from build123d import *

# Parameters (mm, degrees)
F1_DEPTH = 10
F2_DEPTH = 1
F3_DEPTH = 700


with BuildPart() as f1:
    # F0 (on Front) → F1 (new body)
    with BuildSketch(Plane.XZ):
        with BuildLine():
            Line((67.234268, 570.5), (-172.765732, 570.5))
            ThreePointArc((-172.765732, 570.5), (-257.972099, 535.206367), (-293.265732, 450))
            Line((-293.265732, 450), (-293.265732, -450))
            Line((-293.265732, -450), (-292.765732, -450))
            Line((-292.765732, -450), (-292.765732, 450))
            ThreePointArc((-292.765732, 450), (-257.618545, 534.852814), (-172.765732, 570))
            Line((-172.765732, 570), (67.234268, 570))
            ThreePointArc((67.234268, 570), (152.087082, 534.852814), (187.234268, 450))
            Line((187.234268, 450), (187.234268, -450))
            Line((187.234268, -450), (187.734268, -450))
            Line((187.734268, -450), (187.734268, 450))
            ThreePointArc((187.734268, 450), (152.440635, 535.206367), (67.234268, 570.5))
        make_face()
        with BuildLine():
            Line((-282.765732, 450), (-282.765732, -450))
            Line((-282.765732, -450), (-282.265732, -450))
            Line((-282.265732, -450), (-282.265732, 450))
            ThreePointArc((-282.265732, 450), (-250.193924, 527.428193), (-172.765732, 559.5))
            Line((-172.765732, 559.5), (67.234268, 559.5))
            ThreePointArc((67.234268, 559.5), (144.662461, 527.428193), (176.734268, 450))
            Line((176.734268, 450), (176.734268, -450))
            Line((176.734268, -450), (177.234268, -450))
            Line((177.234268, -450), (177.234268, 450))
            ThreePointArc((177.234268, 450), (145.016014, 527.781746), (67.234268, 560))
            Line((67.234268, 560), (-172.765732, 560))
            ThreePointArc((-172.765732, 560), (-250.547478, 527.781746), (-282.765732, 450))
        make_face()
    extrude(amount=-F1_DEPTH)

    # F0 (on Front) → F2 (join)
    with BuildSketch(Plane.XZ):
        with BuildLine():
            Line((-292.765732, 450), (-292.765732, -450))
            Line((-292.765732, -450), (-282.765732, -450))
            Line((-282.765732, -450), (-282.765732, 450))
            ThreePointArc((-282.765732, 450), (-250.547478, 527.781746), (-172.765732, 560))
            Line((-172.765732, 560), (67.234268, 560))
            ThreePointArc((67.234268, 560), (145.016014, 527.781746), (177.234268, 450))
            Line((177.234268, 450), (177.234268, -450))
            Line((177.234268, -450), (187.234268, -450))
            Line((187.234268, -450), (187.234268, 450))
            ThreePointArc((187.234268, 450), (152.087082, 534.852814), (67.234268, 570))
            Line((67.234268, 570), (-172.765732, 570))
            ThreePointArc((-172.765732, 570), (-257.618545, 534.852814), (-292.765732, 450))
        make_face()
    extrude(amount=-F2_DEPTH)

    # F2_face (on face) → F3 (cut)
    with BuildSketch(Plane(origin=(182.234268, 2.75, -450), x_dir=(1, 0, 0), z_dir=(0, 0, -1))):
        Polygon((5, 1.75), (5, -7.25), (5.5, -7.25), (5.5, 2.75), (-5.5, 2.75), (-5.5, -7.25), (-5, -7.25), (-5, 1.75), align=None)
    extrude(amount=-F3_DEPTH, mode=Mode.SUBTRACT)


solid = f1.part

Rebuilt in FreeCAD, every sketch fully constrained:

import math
import FreeCAD as App
import Part
import Sketcher

V = App.Vector


def add_polygon(sketch, points):
    """Adds a closed chain of lines whose ends are joined by coincident constraints."""
    first, n = sketch.GeometryCount, len(points)
    for a, b in zip(points, points[1:] + points[:1]):
        sketch.addGeometry(Part.LineSegment(App.Vector(*a, 0), App.Vector(*b, 0)), False)
    for i in range(n):
        sketch.addConstraint(Sketcher.Constraint("Coincident", first + i, 2, first + (i + 1) % n, 1))

doc = App.newDocument("Part")
body = doc.addObject("PartDesign::Body", "Body")
body.AllowCompound = True

# Sketch on XZ plane
sketch1 = doc.addObject("Sketcher::SketchObject", "Sketch")
body.addObject(sketch1)
sketch1.AttachmentSupport = (doc.XZ_Plane, [""])
sketch1.MapMode = "FlatFace"
sketch1.addGeometry(Part.LineSegment(V(67.234268, 570.5, 0), V(-172.765732, 570.5, 0)), False)
sketch1.addGeometry(Part.ArcOfCircle(Part.Circle(V(-172.765732, 450, 0), V(0, 0, 1), 120.5), math.radians(90), math.radians(180)), False)
sketch1.addGeometry(Part.LineSegment(V(-293.265732, 450, 0), V(-293.265732, -450, 0)), False)
sketch1.addGeometry(Part.LineSegment(V(-293.265732, -450, 0), V(-292.765732, -450, 0)), False)
sketch1.addGeometry(Part.LineSegment(V(-292.765732, -450, 0), V(-292.765732, 450, 0)), False)
sketch1.addGeometry(Part.ArcOfCircle(Part.Circle(V(-172.765731, 449.999999, 0), V(0, 0, 1), 120.000001), math.radians(90), math.radians(180)), False)
sketch1.addGeometry(Part.LineSegment(V(-172.765732, 570, 0), V(67.234268, 570, 0)), False)
sketch1.addGeometry(Part.ArcOfCircle(Part.Circle(V(67.234269, 450.000001, 0), V(0, 0, 1), 119.999999), math.radians(0), math.radians(90)), False)
sketch1.addGeometry(Part.LineSegment(V(187.234268, 450, 0), V(187.234268, -450, 0)), False)
sketch1.addGeometry(Part.LineSegment(V(187.234268, -450, 0), V(187.734268, -450, 0)), False)
sketch1.addGeometry(Part.LineSegment(V(187.734268, -450, 0), V(187.734268, 450, 0)), False)
sketch1.addGeometry(Part.ArcOfCircle(Part.Circle(V(67.234268, 450, 0), V(0, 0, 1), 120.5), math.radians(0), math.radians(90)), False)
sketch1.addGeometry(Part.LineSegment(V(-282.765732, 450, 0), V(-282.765732, -450, 0)), False)
sketch1.addGeometry(Part.LineSegment(V(-282.765732, -450, 0), V(-282.265732, -450, 0)), False)
sketch1.addGeometry(Part.LineSegment(V(-282.265732, -450, 0), V(-282.265732, 450, 0)), False)
sketch1.addGeometry(Part.ArcOfCircle(Part.Circle(V(-172.765732, 450, 0), V(0, 0, 1), 109.5), math.radians(90), math.radians(180)), False)
sketch1.addGeometry(Part.LineSegment(V(-172.765732, 559.5, 0), V(67.234268, 559.5, 0)), False)
sketch1.addGeometry(Part.ArcOfCircle(Part.Circle(V(67.23427, 450.000002, 0), V(0, 0, 1), 109.499998), math.radians(-0.000001), math.radians(90.000001)), False)
sketch1.addGeometry(Part.LineSegment(V(176.734268, 450, 0), V(176.734268, -450, 0)), False)
sketch1.addGeometry(Part.LineSegment(V(176.734268, -450, 0), V(177.234268, -450, 0)), False)
sketch1.addGeometry(Part.LineSegment(V(177.234268, -450, 0), V(177.234268, 450, 0)), False)
sketch1.addGeometry(Part.ArcOfCircle(Part.Circle(V(67.234268, 450, 0), V(0, 0, 1), 110), math.radians(0), math.radians(90)), False)
sketch1.addGeometry(Part.LineSegment(V(67.234268, 560, 0), V(-172.765732, 560, 0)), False)
sketch1.addGeometry(Part.ArcOfCircle(Part.Circle(V(-172.765732, 450, 0), V(0, 0, 1), 110), math.radians(90), math.radians(180)), False)
sketch1.addConstraint(Sketcher.Constraint("Tangent", 0, 2, 1, 1))
sketch1.addConstraint(Sketcher.Constraint("Tangent", 1, 2, 2, 1))
sketch1.addConstraint(Sketcher.Constraint("Coincident", 2, 2, 3, 1))
sketch1.addConstraint(Sketcher.Constraint("Coincident", 3, 2, 4, 1))
sketch1.addConstraint(Sketcher.Constraint("Tangent", 4, 2, 5, 2))
sketch1.addConstraint(Sketcher.Constraint("Tangent", 5, 1, 6, 1))
sketch1.addConstraint(Sketcher.Constraint("Tangent", 6, 2, 7, 2))
sketch1.addConstraint(Sketcher.Constraint("Tangent", 7, 1, 8, 1))
sketch1.addConstraint(Sketcher.Constraint("Coincident", 8, 2, 9, 1))
sketch1.addConstraint(Sketcher.Constraint("Coincident", 9, 2, 10, 1))
sketch1.addConstraint(Sketcher.Constraint("Tangent", 10, 2, 11, 1))
sketch1.addConstraint(Sketcher.Constraint("Tangent", 11, 2, 0, 1))
sketch1.addConstraint(Sketcher.Constraint("Coincident", 12, 2, 13, 1))
sketch1.addConstraint(Sketcher.Constraint("Coincident", 13, 2, 14, 1))
sketch1.addConstraint(Sketcher.Constraint("Tangent", 14, 2, 15, 2))
sketch1.addConstraint(Sketcher.Constraint("Tangent", 15, 1, 16, 1))
sketch1.addConstraint(Sketcher.Constraint("Tangent", 16, 2, 17, 2))
sketch1.addConstraint(Sketcher.Constraint("Tangent", 17, 1, 18, 1))
sketch1.addConstraint(Sketcher.Constraint("Coincident", 18, 2, 19, 1))
sketch1.addConstraint(Sketcher.Constraint("Coincident", 19, 2, 20, 1))
sketch1.addConstraint(Sketcher.Constraint("Tangent", 20, 2, 21, 1))
sketch1.addConstraint(Sketcher.Constraint("Tangent", 21, 2, 22, 1))
sketch1.addConstraint(Sketcher.Constraint("Tangent", 22, 2, 23, 1))
sketch1.addConstraint(Sketcher.Constraint("Tangent", 23, 2, 12, 1))
sketch1.addConstraint(Sketcher.Constraint("Horizontal", 0))
sketch1.addConstraint(Sketcher.Constraint("Vertical", 2))
sketch1.addConstraint(Sketcher.Constraint("Horizontal", 3))
sketch1.addConstraint(Sketcher.Constraint("Vertical", 4))
sketch1.addConstraint(Sketcher.Constraint("Horizontal", 6))
sketch1.addConstraint(Sketcher.Constraint("Vertical", 8))
sketch1.addConstraint(Sketcher.Constraint("Horizontal", 9))
sketch1.addConstraint(Sketcher.Constraint("Vertical", 10))
sketch1.addConstraint(Sketcher.Constraint("Vertical", 12))
sketch1.addConstraint(Sketcher.Constraint("Horizontal", 13))
sketch1.addConstraint(Sketcher.Constraint("Vertical", 14))
sketch1.addConstraint(Sketcher.Constraint("Horizontal", 16))
sketch1.addConstraint(Sketcher.Constraint("Vertical", 18))
sketch1.addConstraint(Sketcher.Constraint("Horizontal", 19))
sketch1.addConstraint(Sketcher.Constraint("Vertical", 20))
sketch1.addConstraint(Sketcher.Constraint("Horizontal", 22))
sketch1.addConstraint(Sketcher.Constraint("Coincident", 5, 3, 1, 3))
sketch1.addConstraint(Sketcher.Constraint("Coincident", 11, 3, 7, 3))
sketch1.addConstraint(Sketcher.Constraint("Coincident", 15, 3, 1, 3))
sketch1.addConstraint(Sketcher.Constraint("Coincident", 17, 3, 7, 3))
sketch1.addConstraint(Sketcher.Constraint("Coincident", 21, 3, 7, 3))
sketch1.addConstraint(Sketcher.Constraint("Coincident", 23, 3, 1, 3))
sketch1.addConstraint(Sketcher.Constraint("Equal", 5, 7))
sketch1.addConstraint(Sketcher.Constraint("Horizontal", 3, 2, 8, 2))
sketch1.addConstraint(Sketcher.Constraint("Horizontal", 9, 2, 12, 2))
sketch1.addConstraint(Sketcher.Constraint("Horizontal", 13, 2, 18, 2))
sketch1.addConstraint(Sketcher.Constraint("Equal", 9, 13))
sketch1.addConstraint(Sketcher.Constraint("Radius", 5, 120.000001))
sketch1.addConstraint(Sketcher.Constraint("Radius", 21, 110.0))
sketch1.addConstraint(Sketcher.Constraint("Radius", 1, 120.5))
sketch1.addConstraint(Sketcher.Constraint("DistanceX", 0, 2, 0, 1, 240.0))
sketch1.addConstraint(Sketcher.Constraint("DistanceY", 2, 2, 2, 1, 900.0))
sketch1.addConstraint(Sketcher.Constraint("DistanceY", -1, 1, 1, 3, 450.0))
sketch1.addConstraint(Sketcher.Constraint("DistanceX", 1, 3, -1, 1, 172.765732))
pad1 = doc.addObject("PartDesign::Pad", "Pad")
body.addObject(pad1)
pad1.Profile = sketch1
pad1.Length = 10
pad1.Reversed = True

# Sketch on XZ plane
sketch2 = doc.addObject("Sketcher::SketchObject", "Sketch001")
body.addObject(sketch2)
sketch2.AttachmentSupport = (doc.XZ_Plane, [""])
sketch2.MapMode = "FlatFace"
sketch2.addGeometry(Part.LineSegment(V(-292.765732, 450, 0), V(-292.765732, -450, 0)), False)
sketch2.addGeometry(Part.LineSegment(V(-292.765732, -450, 0), V(-282.765732, -450, 0)), False)
sketch2.addGeometry(Part.LineSegment(V(-282.765732, -450, 0), V(-282.765732, 450, 0)), False)
sketch2.addGeometry(Part.ArcOfCircle(Part.Circle(V(-172.765732, 450, 0), V(0, 0, 1), 110), math.radians(90), math.radians(180)), False)
sketch2.addGeometry(Part.LineSegment(V(-172.765732, 560, 0), V(67.234268, 560, 0)), False)
sketch2.addGeometry(Part.ArcOfCircle(Part.Circle(V(67.234268, 450, 0), V(0, 0, 1), 110), math.radians(0), math.radians(90)), False)
sketch2.addGeometry(Part.LineSegment(V(177.234268, 450, 0), V(177.234268, -450, 0)), False)
sketch2.addGeometry(Part.LineSegment(V(177.234268, -450, 0), V(187.234268, -450, 0)), False)
sketch2.addGeometry(Part.LineSegment(V(187.234268, -450, 0), V(187.234268, 450, 0)), False)
sketch2.addGeometry(Part.ArcOfCircle(Part.Circle(V(67.234269, 450.000001, 0), V(0, 0, 1), 119.999999), math.radians(0), math.radians(90)), False)
sketch2.addGeometry(Part.LineSegment(V(67.234268, 570, 0), V(-172.765732, 570, 0)), False)
sketch2.addGeometry(Part.ArcOfCircle(Part.Circle(V(-172.765731, 449.999999, 0), V(0, 0, 1), 120.000001), math.radians(90), math.radians(180)), False)
sketch2.addConstraint(Sketcher.Constraint("Coincident", 0, 2, 1, 1))
sketch2.addConstraint(Sketcher.Constraint("Coincident", 1, 2, 2, 1))
sketch2.addConstraint(Sketcher.Constraint("Tangent", 2, 2, 3, 2))
sketch2.addConstraint(Sketcher.Constraint("Tangent", 3, 1, 4, 1))
sketch2.addConstraint(Sketcher.Constraint("Tangent", 4, 2, 5, 2))
sketch2.addConstraint(Sketcher.Constraint("Tangent", 5, 1, 6, 1))
sketch2.addConstraint(Sketcher.Constraint("Coincident", 6, 2, 7, 1))
sketch2.addConstraint(Sketcher.Constraint("Coincident", 7, 2, 8, 1))
sketch2.addConstraint(Sketcher.Constraint("Tangent", 8, 2, 9, 1))
sketch2.addConstraint(Sketcher.Constraint("Tangent", 9, 2, 10, 1))
sketch2.addConstraint(Sketcher.Constraint("Tangent", 10, 2, 11, 1))
sketch2.addConstraint(Sketcher.Constraint("Tangent", 11, 2, 0, 1))
sketch2.addConstraint(Sketcher.Constraint("Vertical", 0))
sketch2.addConstraint(Sketcher.Constraint("Horizontal", 1))
sketch2.addConstraint(Sketcher.Constraint("Vertical", 2))
sketch2.addConstraint(Sketcher.Constraint("Horizontal", 4))
sketch2.addConstraint(Sketcher.Constraint("Vertical", 6))
sketch2.addConstraint(Sketcher.Constraint("Horizontal", 7))
sketch2.addConstraint(Sketcher.Constraint("Vertical", 8))
sketch2.addConstraint(Sketcher.Constraint("Horizontal", 10))
sketch2.addConstraint(Sketcher.Constraint("Coincident", 9, 3, 5, 3))
sketch2.addConstraint(Sketcher.Constraint("Coincident", 11, 3, 3, 3))
sketch2.addConstraint(Sketcher.Constraint("Equal", 3, 5))
sketch2.addConstraint(Sketcher.Constraint("Horizontal", 1, 2, 6, 2))
sketch2.addConstraint(Sketcher.Constraint("Radius", 3, 110.0))
sketch2.addConstraint(Sketcher.Constraint("Radius", 9, 119.999999))
sketch2.addConstraint(Sketcher.Constraint("DistanceX", 4, 1, 4, 2, 240.0))
sketch2.addConstraint(Sketcher.Constraint("DistanceY", 0, 2, 0, 1, 900.0))
sketch2.addConstraint(Sketcher.Constraint("DistanceY", -1, 1, 3, 3, 450.0))
sketch2.addConstraint(Sketcher.Constraint("DistanceX", -1, 1, 5, 3, 67.234268))
pad2 = doc.addObject("PartDesign::Pad", "Pad001")
body.addObject(pad2)
pad2.Profile = sketch2
pad2.Length = 1
pad2.Reversed = True

# Sketch on XY plane
sketch3 = doc.addObject("Sketcher::SketchObject", "Sketch002")
body.addObject(sketch3)
sketch3.AttachmentSupport = (doc.XY_Plane, [""])
sketch3.MapMode = "FlatFace"
sketch3.AttachmentOffset = App.Placement(V(0, 0, -450), App.Rotation())
add_polygon(sketch3, [(187.234268, 1), (187.234268, 10), (187.734268, 10), (187.734268, 0), (176.734268, 0), (176.734268, 10), (177.234268, 10), (177.234268, 1)])  # lines 0-7
sketch3.addConstraint(Sketcher.Constraint("Vertical", 0))
sketch3.addConstraint(Sketcher.Constraint("Horizontal", 1))
sketch3.addConstraint(Sketcher.Constraint("Vertical", 2))
sketch3.addConstraint(Sketcher.Constraint("Horizontal", 3))
sketch3.addConstraint(Sketcher.Constraint("Vertical", 4))
sketch3.addConstraint(Sketcher.Constraint("Horizontal", 5))
sketch3.addConstraint(Sketcher.Constraint("Vertical", 6))
sketch3.addConstraint(Sketcher.Constraint("Horizontal", 7))
sketch3.addConstraint(Sketcher.Constraint("PointOnObject", 2, 2, -1))
sketch3.addConstraint(Sketcher.Constraint("Horizontal", 1, 2, 4, 2))
sketch3.addConstraint(Sketcher.Constraint("Equal", 1, 5))
sketch3.addConstraint(Sketcher.Constraint("Equal", 7, 2))
sketch3.addConstraint(Sketcher.Constraint("DistanceX", 3, 2, 3, 1, 11.0))
sketch3.addConstraint(Sketcher.Constraint("DistanceX", 7, 1, 7, 2, 10.0))
sketch3.addConstraint(Sketcher.Constraint("DistanceY", 0, 1, 0, 2, 9.0))
sketch3.addConstraint(Sketcher.Constraint("DistanceX", -1, 1, 0, 2, 187.234268))
pocket1 = doc.addObject("PartDesign::Pocket", "Pocket")
body.addObject(pocket1)
pocket1.Profile = sketch3
pocket1.Length = 700
pocket1.Reversed = True

doc.recompute()
